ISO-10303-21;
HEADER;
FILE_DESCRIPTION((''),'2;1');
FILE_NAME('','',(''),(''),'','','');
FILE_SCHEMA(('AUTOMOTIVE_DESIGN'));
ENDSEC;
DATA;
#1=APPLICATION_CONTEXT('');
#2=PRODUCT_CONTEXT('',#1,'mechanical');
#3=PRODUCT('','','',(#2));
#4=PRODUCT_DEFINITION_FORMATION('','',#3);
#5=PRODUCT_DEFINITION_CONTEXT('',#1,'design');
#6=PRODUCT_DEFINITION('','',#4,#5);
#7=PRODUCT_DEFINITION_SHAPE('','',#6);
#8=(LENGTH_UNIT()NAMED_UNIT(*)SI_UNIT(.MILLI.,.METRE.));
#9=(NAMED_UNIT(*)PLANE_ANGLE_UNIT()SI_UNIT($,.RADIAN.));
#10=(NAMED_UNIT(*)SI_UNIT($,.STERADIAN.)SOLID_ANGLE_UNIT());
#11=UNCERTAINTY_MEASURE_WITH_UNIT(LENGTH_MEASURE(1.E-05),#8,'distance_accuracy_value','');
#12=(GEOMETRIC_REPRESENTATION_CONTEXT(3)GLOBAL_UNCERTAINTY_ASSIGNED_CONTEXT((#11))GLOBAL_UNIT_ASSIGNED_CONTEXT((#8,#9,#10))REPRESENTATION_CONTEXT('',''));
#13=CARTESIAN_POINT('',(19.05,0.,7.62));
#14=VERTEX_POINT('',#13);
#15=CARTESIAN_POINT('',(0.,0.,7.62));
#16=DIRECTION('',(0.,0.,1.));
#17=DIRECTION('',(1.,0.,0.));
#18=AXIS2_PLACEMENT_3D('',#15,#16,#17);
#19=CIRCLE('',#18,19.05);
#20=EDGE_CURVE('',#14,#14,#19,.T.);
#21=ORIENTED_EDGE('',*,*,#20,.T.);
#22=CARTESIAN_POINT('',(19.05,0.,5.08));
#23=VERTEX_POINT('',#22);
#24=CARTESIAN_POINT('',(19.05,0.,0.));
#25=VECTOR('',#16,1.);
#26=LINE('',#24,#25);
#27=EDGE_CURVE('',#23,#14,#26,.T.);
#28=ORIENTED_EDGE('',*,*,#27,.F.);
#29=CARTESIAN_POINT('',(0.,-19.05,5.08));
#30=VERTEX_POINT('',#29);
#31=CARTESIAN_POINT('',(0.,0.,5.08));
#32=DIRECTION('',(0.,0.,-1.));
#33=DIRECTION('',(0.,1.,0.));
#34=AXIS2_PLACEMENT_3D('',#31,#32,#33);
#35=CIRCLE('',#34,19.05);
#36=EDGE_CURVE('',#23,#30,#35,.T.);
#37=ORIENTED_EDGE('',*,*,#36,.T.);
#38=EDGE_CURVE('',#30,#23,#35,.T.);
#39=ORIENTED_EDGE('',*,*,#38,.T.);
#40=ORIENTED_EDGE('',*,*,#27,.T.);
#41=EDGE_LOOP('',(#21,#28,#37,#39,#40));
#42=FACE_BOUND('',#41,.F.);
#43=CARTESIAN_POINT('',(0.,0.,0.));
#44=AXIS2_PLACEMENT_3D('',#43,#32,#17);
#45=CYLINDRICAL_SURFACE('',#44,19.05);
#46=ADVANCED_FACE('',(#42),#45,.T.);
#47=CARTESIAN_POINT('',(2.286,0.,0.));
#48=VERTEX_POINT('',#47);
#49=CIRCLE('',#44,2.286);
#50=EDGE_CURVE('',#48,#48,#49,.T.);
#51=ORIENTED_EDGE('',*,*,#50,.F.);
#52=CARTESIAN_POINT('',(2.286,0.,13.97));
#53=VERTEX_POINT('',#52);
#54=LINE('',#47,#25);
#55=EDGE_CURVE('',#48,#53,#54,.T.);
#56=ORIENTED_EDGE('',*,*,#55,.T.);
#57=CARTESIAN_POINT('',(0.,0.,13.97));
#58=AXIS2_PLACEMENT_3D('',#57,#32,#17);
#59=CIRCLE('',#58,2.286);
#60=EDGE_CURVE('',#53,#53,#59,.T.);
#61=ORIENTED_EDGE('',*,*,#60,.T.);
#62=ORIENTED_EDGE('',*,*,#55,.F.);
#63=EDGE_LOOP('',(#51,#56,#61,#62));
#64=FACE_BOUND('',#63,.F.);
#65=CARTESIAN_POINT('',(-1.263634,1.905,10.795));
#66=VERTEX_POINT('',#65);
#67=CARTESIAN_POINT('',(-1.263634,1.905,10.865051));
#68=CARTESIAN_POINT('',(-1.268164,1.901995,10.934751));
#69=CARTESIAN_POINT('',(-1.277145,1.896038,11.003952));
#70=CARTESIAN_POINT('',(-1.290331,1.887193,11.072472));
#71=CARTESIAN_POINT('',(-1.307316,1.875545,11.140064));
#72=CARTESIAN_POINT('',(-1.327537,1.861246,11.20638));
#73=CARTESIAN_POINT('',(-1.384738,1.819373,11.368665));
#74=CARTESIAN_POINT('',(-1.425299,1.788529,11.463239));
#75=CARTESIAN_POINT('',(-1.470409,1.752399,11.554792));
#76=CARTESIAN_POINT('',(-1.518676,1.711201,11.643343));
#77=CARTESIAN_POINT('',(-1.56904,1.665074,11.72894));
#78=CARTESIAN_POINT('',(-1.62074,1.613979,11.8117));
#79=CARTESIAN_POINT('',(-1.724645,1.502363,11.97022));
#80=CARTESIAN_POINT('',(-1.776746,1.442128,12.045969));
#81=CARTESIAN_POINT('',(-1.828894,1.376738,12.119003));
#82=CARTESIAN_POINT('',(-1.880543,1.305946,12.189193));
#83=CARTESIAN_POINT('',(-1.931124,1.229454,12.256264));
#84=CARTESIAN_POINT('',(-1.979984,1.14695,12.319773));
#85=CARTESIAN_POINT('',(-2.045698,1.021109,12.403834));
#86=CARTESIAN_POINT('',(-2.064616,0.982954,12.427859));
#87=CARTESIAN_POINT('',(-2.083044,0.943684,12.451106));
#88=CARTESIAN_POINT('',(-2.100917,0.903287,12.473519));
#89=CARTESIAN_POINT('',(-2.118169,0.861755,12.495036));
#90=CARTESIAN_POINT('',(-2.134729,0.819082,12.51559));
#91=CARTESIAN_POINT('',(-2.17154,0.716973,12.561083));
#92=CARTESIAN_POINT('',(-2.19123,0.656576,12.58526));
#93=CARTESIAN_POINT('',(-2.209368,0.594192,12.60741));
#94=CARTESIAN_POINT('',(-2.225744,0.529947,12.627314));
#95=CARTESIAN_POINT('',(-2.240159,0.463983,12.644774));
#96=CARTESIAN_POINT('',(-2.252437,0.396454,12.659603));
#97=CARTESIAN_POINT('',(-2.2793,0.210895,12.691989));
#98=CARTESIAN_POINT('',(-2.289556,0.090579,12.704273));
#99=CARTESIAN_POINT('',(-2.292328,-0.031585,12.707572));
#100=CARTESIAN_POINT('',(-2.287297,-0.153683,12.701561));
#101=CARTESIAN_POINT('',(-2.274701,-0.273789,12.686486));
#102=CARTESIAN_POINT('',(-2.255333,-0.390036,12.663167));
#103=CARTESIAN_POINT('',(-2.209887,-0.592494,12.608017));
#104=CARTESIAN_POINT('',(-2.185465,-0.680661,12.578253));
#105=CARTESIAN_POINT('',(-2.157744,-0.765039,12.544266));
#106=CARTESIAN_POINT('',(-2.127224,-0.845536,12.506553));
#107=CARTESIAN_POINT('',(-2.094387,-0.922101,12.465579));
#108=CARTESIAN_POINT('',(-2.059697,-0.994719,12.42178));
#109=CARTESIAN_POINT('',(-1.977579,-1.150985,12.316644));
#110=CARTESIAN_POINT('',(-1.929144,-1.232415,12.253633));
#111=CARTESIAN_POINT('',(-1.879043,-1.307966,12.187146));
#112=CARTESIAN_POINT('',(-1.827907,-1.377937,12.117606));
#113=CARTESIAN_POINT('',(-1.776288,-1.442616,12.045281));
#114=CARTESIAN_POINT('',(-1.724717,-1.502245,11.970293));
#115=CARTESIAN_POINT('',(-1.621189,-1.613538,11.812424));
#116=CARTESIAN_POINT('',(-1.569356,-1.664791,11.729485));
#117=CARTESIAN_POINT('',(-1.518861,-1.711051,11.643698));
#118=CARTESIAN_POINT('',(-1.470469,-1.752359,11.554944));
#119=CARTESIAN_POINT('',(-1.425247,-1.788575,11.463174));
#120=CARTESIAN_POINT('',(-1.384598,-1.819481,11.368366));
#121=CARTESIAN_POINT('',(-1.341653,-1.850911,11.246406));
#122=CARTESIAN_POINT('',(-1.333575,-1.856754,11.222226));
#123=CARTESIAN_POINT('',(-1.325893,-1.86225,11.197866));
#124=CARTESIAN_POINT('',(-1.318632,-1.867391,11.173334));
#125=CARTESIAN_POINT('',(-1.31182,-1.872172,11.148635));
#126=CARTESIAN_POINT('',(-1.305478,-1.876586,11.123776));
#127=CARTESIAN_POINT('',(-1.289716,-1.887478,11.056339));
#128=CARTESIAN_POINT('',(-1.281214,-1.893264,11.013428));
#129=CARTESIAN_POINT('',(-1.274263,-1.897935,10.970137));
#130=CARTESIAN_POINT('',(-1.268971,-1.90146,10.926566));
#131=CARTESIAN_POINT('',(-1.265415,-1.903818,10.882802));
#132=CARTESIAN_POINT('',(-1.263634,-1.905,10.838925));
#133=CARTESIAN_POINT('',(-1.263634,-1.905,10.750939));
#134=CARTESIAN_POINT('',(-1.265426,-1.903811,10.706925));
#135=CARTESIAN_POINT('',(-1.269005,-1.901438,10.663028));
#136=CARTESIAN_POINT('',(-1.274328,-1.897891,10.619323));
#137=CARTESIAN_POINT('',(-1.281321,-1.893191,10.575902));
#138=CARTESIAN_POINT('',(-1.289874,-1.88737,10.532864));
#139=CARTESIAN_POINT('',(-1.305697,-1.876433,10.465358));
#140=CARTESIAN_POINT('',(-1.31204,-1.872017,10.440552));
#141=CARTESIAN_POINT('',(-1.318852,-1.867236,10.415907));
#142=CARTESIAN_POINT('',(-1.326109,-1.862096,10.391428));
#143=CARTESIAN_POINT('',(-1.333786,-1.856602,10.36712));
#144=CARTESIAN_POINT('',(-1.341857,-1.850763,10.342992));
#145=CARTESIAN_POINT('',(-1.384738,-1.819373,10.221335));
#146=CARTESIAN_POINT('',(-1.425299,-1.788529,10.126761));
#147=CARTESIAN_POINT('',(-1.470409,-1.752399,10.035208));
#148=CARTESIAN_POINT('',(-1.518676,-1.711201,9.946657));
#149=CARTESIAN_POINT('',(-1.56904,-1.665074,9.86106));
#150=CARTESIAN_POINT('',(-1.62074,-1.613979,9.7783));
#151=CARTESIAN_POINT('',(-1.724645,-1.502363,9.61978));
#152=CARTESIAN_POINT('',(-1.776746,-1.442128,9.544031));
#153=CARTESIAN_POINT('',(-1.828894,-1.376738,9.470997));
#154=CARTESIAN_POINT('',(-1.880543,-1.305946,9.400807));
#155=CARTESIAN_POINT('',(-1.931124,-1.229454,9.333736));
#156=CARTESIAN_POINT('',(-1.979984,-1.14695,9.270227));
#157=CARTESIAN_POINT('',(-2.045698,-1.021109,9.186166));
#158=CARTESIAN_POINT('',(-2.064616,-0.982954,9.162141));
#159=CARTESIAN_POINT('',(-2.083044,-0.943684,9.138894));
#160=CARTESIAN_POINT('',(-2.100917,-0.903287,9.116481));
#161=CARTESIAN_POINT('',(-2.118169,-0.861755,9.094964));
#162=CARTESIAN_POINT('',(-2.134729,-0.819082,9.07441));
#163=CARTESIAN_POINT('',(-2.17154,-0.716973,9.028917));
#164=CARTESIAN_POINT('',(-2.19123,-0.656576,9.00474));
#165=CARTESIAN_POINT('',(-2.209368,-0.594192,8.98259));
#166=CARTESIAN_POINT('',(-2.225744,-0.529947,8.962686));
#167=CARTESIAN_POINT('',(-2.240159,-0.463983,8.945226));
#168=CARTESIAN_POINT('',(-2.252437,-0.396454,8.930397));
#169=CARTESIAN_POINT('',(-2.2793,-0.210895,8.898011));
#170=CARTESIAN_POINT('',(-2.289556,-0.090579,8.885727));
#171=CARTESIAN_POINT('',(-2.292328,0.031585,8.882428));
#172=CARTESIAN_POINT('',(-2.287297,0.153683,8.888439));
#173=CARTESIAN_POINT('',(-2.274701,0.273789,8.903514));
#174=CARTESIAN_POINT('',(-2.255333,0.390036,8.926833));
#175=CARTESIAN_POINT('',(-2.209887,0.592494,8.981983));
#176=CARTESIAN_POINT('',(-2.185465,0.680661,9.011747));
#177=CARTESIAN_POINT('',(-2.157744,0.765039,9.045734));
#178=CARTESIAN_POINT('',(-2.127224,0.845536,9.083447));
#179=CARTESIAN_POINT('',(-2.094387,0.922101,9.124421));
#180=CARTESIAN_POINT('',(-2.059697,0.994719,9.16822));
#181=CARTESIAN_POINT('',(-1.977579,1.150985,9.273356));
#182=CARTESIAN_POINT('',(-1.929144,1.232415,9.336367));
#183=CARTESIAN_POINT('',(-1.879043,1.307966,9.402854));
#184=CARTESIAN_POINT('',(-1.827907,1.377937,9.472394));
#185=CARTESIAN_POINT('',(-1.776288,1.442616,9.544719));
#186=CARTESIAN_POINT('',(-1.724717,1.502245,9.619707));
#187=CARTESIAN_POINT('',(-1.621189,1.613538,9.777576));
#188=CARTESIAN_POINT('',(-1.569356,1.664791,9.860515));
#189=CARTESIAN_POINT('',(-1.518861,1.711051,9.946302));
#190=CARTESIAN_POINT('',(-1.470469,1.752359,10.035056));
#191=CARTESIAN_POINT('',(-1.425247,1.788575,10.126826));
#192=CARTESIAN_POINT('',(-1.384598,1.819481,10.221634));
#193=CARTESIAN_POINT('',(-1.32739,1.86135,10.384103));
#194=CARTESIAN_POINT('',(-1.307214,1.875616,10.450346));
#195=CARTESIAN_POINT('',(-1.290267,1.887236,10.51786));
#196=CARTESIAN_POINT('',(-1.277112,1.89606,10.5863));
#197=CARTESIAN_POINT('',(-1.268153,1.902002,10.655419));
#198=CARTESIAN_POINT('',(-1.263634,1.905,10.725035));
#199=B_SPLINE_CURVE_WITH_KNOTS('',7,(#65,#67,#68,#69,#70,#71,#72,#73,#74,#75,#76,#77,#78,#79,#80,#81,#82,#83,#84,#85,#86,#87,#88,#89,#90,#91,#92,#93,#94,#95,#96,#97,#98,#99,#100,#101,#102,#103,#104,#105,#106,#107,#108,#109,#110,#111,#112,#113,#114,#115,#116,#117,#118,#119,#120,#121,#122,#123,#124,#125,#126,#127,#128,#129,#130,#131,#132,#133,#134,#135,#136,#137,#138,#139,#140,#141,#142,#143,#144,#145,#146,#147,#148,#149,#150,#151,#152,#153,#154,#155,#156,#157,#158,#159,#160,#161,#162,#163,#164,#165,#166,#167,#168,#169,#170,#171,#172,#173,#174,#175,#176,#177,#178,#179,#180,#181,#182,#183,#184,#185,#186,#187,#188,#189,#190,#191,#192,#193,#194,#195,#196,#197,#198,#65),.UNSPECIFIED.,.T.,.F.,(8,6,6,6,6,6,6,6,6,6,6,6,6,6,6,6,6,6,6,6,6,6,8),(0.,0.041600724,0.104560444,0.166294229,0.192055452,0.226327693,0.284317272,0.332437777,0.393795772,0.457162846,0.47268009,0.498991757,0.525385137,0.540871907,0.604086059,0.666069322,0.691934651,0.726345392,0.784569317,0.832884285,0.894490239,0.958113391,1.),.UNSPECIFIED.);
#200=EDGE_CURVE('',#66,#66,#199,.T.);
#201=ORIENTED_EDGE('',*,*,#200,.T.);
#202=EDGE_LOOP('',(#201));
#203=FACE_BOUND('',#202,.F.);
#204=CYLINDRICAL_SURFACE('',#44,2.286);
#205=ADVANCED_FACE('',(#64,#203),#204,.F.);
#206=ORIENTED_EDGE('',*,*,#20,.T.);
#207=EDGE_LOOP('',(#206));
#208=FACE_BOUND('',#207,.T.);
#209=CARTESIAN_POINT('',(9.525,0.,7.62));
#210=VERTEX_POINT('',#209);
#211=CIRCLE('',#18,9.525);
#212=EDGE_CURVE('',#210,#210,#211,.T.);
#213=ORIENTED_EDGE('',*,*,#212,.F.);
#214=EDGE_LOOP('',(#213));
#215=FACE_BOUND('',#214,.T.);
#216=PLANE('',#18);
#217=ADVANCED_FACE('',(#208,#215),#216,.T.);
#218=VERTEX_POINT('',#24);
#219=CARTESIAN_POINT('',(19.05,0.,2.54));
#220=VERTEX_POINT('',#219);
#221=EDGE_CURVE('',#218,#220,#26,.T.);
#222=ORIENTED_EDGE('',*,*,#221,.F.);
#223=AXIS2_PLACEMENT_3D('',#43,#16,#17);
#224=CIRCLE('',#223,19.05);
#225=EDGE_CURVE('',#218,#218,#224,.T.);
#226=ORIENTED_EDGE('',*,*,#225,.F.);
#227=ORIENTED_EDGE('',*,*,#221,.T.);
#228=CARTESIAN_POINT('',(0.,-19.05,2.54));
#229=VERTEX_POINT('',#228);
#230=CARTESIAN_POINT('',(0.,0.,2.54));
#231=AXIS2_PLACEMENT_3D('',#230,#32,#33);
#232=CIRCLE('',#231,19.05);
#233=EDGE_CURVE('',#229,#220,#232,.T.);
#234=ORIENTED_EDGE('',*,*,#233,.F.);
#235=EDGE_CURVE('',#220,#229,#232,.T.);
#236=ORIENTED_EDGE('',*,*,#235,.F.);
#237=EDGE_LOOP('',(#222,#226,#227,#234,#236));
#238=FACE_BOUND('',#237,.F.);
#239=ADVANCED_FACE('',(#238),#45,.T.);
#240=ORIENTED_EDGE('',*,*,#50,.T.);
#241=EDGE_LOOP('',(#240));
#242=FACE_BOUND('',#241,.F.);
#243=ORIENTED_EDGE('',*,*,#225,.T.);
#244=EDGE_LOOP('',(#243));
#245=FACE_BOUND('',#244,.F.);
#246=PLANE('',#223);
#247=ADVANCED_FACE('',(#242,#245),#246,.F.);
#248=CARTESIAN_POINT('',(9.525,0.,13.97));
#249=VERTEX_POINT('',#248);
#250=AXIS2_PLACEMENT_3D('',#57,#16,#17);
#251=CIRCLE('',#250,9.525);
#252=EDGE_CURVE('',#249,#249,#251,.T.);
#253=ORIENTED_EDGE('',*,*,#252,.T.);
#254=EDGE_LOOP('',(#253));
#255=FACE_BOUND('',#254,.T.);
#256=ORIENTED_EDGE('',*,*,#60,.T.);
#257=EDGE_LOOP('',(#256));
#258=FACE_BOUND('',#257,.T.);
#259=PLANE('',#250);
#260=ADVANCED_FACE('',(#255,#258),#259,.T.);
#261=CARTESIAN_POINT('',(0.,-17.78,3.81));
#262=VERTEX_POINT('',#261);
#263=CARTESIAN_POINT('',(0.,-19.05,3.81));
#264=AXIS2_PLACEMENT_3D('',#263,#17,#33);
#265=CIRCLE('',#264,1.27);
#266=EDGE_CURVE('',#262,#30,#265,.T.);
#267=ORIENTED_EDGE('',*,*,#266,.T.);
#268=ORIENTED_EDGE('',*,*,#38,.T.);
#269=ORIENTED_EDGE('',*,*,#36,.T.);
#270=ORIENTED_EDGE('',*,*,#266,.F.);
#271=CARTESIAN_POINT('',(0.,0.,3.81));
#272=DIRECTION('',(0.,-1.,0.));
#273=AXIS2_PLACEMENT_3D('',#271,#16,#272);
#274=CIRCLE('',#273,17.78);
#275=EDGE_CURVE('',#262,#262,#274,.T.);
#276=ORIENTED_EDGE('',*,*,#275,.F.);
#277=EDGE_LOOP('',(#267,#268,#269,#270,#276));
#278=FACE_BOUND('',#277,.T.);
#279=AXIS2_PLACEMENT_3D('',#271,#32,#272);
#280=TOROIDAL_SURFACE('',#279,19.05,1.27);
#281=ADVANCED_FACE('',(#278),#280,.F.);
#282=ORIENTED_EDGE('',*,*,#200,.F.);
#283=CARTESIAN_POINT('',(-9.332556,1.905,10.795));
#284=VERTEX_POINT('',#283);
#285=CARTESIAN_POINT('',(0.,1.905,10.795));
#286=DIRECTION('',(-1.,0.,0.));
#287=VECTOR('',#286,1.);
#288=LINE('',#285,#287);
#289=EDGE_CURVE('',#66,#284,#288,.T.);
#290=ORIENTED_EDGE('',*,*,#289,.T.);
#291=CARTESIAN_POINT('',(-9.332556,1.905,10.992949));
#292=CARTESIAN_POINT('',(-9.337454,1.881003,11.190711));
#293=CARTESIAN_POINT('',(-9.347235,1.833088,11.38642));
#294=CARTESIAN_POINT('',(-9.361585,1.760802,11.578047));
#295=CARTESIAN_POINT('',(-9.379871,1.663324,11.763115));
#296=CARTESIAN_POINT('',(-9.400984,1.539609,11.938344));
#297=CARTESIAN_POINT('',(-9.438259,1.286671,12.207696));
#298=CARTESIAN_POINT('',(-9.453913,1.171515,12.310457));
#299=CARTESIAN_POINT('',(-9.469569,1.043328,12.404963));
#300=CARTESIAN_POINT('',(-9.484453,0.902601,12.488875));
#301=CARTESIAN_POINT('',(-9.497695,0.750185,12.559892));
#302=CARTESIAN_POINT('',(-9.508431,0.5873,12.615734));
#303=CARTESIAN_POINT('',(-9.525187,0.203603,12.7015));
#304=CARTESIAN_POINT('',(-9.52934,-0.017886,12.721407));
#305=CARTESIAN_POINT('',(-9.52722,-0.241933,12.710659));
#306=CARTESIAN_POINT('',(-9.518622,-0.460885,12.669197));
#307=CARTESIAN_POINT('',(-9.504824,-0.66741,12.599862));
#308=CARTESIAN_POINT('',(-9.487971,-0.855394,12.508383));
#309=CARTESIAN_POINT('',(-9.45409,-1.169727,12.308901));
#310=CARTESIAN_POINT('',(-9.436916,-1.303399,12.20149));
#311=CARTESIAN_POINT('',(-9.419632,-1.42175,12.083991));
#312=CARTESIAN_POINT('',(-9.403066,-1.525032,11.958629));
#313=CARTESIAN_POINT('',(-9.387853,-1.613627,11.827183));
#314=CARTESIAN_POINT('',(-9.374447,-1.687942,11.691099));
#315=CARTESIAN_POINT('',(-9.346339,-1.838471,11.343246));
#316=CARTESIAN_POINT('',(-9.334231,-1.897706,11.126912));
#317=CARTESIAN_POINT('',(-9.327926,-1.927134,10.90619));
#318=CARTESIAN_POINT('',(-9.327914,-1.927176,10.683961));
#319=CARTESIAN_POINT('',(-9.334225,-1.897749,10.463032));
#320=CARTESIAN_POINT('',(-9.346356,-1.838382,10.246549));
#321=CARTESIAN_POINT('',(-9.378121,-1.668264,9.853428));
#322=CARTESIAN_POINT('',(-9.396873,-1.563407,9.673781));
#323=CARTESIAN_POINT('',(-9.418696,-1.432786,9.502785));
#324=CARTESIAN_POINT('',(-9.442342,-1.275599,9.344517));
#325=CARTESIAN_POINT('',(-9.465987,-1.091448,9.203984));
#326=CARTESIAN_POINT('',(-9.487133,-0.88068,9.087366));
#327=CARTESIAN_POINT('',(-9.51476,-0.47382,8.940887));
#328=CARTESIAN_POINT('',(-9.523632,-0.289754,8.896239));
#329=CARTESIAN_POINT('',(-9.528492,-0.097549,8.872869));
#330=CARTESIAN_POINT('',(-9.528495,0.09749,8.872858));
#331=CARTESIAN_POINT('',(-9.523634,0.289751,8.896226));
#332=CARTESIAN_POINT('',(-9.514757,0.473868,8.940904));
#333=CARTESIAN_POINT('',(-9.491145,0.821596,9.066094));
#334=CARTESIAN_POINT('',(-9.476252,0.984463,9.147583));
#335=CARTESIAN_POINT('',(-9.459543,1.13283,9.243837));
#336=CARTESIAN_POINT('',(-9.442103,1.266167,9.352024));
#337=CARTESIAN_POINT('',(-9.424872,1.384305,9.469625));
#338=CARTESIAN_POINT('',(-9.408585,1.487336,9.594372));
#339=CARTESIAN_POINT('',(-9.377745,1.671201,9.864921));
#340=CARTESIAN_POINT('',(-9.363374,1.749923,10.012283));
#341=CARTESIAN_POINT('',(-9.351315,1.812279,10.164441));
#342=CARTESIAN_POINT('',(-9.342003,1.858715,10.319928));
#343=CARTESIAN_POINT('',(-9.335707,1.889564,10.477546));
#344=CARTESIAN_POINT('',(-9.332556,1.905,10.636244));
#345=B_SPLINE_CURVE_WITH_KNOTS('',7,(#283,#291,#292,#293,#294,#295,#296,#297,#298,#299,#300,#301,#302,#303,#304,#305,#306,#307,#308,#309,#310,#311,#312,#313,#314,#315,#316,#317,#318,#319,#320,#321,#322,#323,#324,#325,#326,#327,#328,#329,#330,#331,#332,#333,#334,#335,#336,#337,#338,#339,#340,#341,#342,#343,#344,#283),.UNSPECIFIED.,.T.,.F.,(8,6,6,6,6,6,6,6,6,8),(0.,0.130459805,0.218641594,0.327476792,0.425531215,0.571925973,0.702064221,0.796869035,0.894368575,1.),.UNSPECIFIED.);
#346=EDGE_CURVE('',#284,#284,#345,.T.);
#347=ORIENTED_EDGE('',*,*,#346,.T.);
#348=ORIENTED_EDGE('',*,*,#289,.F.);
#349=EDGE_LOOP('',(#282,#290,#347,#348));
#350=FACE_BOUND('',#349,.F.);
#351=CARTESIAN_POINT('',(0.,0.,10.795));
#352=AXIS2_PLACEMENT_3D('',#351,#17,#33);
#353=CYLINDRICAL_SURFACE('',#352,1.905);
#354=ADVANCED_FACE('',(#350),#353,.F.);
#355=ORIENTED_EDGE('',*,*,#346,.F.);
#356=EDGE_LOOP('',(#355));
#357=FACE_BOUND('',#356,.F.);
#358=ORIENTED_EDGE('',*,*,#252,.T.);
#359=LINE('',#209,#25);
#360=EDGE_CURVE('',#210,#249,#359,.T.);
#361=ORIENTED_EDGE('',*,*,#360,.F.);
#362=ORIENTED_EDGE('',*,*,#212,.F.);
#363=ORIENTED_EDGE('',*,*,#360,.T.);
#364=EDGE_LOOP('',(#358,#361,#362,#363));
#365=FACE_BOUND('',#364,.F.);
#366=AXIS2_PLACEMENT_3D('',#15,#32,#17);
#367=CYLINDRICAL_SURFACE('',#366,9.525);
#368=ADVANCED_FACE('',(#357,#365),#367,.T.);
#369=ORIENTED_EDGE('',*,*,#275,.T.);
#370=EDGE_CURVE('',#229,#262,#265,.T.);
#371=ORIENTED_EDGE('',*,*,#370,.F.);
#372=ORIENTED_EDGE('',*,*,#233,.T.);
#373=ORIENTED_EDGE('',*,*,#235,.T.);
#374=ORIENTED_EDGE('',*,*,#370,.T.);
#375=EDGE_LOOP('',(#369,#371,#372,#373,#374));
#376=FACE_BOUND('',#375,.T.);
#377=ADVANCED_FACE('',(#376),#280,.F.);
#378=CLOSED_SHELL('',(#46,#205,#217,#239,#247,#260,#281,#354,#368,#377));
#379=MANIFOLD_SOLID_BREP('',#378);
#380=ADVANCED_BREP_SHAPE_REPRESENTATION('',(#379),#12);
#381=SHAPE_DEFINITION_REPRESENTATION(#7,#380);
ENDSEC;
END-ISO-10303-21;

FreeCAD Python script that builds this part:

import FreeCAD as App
import Part
import Sketcher
from FreeCAD import Vector
Q = App.Units.Quantity

doc = App.newDocument("Part")
params = doc.addObject("Spreadsheet::Sheet", "Params")
for row, (alias, value) in enumerate([
    ("sketch1_diameter", "1.5 in"),
    ("pad1_length", "0.3 in"),
    ("sketch2_diameter", "0.75 in"),
    ("pad2_length", "0.25 in"),
    ("sketch3_diameter", "0.15 in"),
    ("pocket1_length", "1 in"),
    ("sketch4_diameter", "0.18 in"),
    ("pocket2_length", "4 in"),
    ("sketch5_diameter", "0.1 in"),
    ("groove_angle", "360 deg"),
], start=1):
    params.set(f"A{row}", alias)
    params.set(f"B{row}", "=" + value)
    params.setAlias(f"B{row}", alias)

body = doc.addObject("PartDesign::Body", "Body")

sketch1 = doc.addObject("Sketcher::SketchObject", "Sketch")
body.addObject(sketch1)
sketch1.AttachmentSupport = (doc.XY_Plane, [""])
sketch1.MapMode = "FlatFace"
sketch1.addGeometry(Part.Circle(Vector(0, 0, 0), Vector(0, 0, 1), 19), False)
sketch1.addConstraint([
    Sketcher.Constraint("Coincident", 0, 3, -1, 1),
    Sketcher.Constraint("Diameter", 0, Q("1.5 in")),
])
sketch1.setExpression("Constraints[1]", "Params.sketch1_diameter")
pad1 = doc.addObject("PartDesign::Pad", "Pad")
body.addObject(pad1)
pad1.Profile = sketch1
pad1.setExpression("Length", "Params.pad1_length")

sketch2 = doc.addObject("Sketcher::SketchObject", "Sketch001")
body.addObject(sketch2)
sketch2.AttachmentSupport = (doc.XY_Plane, [""])
sketch2.MapMode = "FlatFace"
sketch2.AttachmentOffset = App.Placement(Vector(0, 0, 0.3 * 25.4), App.Rotation())
sketch2.addGeometry(Part.Circle(Vector(0, 0, 0), Vector(0, 0, 1), 10), False)
sketch2.addConstraint([
    Sketcher.Constraint("Coincident", 0, 3, -1, 1),
    Sketcher.Constraint("Diameter", 0, Q("0.75 in")),
])
sketch2.setExpression("Constraints[1]", "Params.sketch2_diameter")
pad2 = doc.addObject("PartDesign::Pad", "Pad001")
body.addObject(pad2)
pad2.Profile = sketch2
pad2.setExpression("Length", "Params.pad2_length")

sketch3 = doc.addObject("Sketcher::SketchObject", "Sketch002")
body.addObject(sketch3)
sketch3.AttachmentSupport = (doc.YZ_Plane, [""])
sketch3.MapMode = "FlatFace"
sketch3.addGeometry(Part.Circle(Vector(0, 10.8, 0), Vector(0, 0, 1), 1.9), False)
sketch3.addConstraint([
    Sketcher.Constraint("PointOnObject", 0, 3, -2),
    Sketcher.Constraint("Diameter", 0, Q("0.15 in")),
    Sketcher.Constraint("DistanceY", -1, 1, 0, 3, Q("0.425 in")),
])
sketch3.setExpression("Constraints[1]", "Params.sketch3_diameter")
pocket1 = doc.addObject("PartDesign::Pocket", "Pocket")
body.addObject(pocket1)
pocket1.Profile = sketch3
pocket1.setExpression("Length", "Params.pocket1_length")

sketch4 = doc.addObject("Sketcher::SketchObject", "Sketch003")
body.addObject(sketch4)
sketch4.AttachmentSupport = (doc.XY_Plane, [""])
sketch4.MapMode = "FlatFace"
sketch4.addGeometry(Part.Circle(Vector(0, 0, 0), Vector(0, 0, 1), 2.3), False)
sketch4.addConstraint([
    Sketcher.Constraint("Coincident", 0, 3, -1, 1),
    Sketcher.Constraint("Diameter", 0, Q("0.18 in")),
])
sketch4.setExpression("Constraints[1]", "Params.sketch4_diameter")
pocket2 = doc.addObject("PartDesign::Pocket", "Pocket001")
body.addObject(pocket2)
pocket2.Profile = sketch4
pocket2.setExpression("Length", "Params.pocket2_length")
pocket2.Reversed = True

sketch5 = doc.addObject("Sketcher::SketchObject", "Sketch004")
body.addObject(sketch5)
sketch5.AttachmentSupport = (doc.YZ_Plane, [""])
sketch5.MapMode = "FlatFace"
sketch5.addGeometry(Part.Circle(Vector(-19.1, 3.8, 0), Vector(0, 0, 1), 1.3), False)
sketch5.addConstraint([
    Sketcher.Constraint("Diameter", 0, Q("0.1 in")),
    Sketcher.Constraint("DistanceX", 0, 3, -1, 1, Q("0.75 in")),
    Sketcher.Constraint("DistanceY", -1, 1, 0, 3, Q("0.15 in")),
])
sketch5.setExpression("Constraints[0]", "Params.sketch5_diameter")
groove = doc.addObject("PartDesign::Groove", "Groove")
body.addObject(groove)
groove.Profile = sketch5
groove.ReferenceAxis = (sketch5, ["V_Axis"])
groove.setExpression("Angle", "Params.groove_angle")

doc.recompute()
